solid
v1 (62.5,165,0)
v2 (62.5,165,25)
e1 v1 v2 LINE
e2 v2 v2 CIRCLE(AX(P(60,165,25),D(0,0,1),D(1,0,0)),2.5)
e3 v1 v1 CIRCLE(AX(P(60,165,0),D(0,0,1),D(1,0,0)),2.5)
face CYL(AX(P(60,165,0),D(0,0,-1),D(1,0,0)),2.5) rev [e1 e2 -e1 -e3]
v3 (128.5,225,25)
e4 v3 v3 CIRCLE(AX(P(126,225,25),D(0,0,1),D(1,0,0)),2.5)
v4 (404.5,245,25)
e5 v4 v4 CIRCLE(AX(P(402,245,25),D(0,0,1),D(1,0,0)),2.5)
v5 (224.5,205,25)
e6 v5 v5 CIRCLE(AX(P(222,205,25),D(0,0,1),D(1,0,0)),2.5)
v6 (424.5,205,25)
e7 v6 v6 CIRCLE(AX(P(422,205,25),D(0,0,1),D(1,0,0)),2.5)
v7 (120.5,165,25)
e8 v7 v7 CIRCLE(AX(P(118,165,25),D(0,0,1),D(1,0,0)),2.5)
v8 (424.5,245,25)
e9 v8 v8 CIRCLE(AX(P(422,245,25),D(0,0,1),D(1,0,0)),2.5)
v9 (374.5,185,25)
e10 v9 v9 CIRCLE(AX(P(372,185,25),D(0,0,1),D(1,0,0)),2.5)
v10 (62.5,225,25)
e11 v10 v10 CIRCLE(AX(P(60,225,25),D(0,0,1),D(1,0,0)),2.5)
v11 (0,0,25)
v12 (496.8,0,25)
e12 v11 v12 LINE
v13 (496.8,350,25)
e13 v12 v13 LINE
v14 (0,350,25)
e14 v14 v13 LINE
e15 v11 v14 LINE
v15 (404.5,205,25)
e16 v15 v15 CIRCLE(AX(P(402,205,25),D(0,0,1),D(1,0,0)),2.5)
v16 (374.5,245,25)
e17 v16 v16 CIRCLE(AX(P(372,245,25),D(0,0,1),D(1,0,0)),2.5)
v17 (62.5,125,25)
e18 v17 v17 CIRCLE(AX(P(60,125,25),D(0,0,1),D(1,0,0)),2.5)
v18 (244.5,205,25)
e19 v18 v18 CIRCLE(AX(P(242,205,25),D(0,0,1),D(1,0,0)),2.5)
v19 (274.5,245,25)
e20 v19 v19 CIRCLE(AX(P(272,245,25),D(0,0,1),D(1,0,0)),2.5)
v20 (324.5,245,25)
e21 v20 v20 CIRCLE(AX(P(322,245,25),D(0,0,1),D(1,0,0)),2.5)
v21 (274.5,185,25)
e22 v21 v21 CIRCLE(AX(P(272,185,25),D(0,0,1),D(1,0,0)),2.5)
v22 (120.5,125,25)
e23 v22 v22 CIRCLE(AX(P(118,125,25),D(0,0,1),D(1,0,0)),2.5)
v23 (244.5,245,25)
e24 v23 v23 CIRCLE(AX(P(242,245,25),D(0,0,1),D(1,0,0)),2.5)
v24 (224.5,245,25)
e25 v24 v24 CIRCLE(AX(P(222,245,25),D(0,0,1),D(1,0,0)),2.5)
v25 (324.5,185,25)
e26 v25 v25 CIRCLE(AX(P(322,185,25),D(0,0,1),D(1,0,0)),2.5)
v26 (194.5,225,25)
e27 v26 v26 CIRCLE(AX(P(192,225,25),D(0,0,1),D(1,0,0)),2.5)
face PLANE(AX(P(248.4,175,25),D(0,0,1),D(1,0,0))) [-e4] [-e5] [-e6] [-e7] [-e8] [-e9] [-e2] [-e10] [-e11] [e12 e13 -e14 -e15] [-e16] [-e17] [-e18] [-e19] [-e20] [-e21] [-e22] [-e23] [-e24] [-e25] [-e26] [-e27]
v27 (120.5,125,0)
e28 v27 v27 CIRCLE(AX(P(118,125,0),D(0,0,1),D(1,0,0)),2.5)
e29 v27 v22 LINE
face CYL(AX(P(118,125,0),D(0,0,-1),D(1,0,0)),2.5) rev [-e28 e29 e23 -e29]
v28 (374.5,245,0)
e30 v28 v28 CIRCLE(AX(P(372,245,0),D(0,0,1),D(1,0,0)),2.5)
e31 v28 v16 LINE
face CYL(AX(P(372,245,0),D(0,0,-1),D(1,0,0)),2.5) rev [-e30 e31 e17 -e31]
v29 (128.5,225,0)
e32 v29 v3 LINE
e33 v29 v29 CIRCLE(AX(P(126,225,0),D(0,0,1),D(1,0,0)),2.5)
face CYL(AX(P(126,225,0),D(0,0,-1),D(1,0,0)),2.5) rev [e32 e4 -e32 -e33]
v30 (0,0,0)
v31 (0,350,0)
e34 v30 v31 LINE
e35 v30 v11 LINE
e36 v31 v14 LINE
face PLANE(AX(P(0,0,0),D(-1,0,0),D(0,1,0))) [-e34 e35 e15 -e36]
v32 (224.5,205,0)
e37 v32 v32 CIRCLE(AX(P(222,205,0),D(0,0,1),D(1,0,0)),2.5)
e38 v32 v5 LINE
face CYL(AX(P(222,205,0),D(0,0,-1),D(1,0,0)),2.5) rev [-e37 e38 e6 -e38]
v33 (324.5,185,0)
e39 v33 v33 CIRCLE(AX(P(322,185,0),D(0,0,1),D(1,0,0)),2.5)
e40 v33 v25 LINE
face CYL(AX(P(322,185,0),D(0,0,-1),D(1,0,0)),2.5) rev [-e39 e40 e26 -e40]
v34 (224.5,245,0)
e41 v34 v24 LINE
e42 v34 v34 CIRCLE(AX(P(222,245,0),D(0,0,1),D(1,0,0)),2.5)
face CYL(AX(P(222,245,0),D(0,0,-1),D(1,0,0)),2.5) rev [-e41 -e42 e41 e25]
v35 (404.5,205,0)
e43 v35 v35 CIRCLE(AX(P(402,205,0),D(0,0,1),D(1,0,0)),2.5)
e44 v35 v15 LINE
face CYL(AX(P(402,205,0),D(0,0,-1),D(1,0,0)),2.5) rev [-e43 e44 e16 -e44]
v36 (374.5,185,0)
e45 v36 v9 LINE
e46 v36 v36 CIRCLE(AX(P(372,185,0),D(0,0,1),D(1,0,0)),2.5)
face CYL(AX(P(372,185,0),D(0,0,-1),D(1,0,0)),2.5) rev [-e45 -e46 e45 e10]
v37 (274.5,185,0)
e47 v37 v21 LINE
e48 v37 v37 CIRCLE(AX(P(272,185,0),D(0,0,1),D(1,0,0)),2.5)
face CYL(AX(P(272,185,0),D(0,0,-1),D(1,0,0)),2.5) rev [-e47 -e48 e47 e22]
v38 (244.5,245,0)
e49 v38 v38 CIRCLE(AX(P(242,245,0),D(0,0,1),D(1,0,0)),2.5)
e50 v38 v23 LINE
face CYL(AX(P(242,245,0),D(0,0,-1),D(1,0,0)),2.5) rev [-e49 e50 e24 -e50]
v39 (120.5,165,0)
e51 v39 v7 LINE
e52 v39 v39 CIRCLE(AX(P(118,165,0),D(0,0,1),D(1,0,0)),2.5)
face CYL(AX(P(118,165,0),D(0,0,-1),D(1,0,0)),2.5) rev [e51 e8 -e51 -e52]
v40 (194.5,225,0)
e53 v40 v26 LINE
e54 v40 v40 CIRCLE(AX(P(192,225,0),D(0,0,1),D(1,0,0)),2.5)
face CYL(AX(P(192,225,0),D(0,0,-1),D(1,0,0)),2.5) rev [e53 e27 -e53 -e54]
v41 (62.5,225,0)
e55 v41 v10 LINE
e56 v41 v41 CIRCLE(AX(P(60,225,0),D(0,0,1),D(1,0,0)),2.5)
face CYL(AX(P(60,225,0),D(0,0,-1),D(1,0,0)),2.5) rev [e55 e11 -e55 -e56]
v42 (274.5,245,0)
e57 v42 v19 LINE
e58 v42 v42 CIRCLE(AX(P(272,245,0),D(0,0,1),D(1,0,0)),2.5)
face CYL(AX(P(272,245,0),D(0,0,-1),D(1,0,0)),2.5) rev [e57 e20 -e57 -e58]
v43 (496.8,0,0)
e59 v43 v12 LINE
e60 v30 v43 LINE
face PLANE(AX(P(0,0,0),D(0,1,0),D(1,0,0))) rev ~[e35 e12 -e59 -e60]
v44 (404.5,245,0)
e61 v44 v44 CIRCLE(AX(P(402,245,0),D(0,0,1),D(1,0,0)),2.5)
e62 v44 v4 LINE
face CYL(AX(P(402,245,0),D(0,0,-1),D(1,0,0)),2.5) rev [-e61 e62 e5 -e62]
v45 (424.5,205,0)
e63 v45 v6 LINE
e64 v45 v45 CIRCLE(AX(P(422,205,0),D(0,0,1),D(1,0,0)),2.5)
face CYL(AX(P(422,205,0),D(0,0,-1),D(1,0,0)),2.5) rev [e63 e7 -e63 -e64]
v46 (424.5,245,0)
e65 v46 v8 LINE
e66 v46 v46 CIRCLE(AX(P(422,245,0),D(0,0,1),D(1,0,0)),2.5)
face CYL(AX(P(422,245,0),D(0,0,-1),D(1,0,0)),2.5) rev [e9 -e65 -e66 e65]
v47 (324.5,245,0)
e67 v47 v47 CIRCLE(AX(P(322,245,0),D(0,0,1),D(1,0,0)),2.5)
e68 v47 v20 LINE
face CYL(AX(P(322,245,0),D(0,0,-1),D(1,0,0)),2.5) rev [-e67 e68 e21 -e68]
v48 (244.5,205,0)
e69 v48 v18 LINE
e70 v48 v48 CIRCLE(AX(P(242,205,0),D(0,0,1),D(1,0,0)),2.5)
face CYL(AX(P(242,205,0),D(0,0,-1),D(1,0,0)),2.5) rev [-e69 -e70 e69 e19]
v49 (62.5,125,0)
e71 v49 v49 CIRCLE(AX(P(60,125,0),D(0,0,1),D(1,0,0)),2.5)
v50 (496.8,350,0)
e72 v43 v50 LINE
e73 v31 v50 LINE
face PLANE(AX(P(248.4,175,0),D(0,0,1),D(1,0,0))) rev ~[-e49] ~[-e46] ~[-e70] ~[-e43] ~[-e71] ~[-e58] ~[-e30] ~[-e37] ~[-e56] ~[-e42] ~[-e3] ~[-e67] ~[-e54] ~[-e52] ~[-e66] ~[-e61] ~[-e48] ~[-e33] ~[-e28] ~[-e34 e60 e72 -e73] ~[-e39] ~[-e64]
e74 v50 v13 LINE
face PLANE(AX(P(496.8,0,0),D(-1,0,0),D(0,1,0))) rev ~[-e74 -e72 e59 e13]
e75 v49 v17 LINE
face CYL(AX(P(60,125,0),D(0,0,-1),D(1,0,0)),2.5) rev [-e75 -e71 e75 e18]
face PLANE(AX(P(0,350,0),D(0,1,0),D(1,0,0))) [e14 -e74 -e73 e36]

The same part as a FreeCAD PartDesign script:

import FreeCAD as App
import Part
import Sketcher
from FreeCAD import Vector

doc = App.newDocument("Part")
body = doc.addObject("PartDesign::Body", "Body")

# Sketch on XY plane
sketch1 = doc.addObject("Sketcher::SketchObject", "Sketch")
body.addObject(sketch1)
sketch1.AttachmentSupport = (doc.XY_Plane, [""])
sketch1.MapMode = "FlatFace"
sketch1.addGeometry([
    Part.LineSegment(Vector(0, 350, 0), Vector(0, 0, 0)),  # 0
    Part.LineSegment(Vector(0, 0, 0), Vector(496.8, 0, 0)),  # 1
    Part.LineSegment(Vector(496.8, 0, 0), Vector(496.8, 350, 0)),  # 2
    Part.LineSegment(Vector(496.8, 350, 0), Vector(0, 350, 0)),  # 3
    Part.Circle(Vector(60, 125, 0), Vector(0, 0, 1), 2.5),  # 4
    Part.Circle(Vector(118, 125, 0), Vector(0, 0, 1), 2.5),  # 5
    Part.Circle(Vector(60, 165, 0), Vector(0, 0, 1), 2.5),  # 6
    Part.Circle(Vector(118, 165, 0), Vector(0, 0, 1), 2.5),  # 7
    Part.Circle(Vector(222, 205, 0), Vector(0, 0, 1), 2.5),  # 8
    Part.Circle(Vector(60, 225, 0), Vector(0, 0, 1), 2.5),  # 9
    Part.Circle(Vector(126, 225, 0), Vector(0, 0, 1), 2.5),  # 10
    Part.Circle(Vector(192, 225, 0), Vector(0, 0, 1), 2.5),  # 11
    Part.Circle(Vector(222, 245, 0), Vector(0, 0, 1), 2.5),  # 12
    Part.Circle(Vector(272, 185, 0), Vector(0, 0, 1), 2.5),  # 13
    Part.Circle(Vector(322, 185, 0), Vector(0, 0, 1), 2.5),  # 14
    Part.Circle(Vector(242, 205, 0), Vector(0, 0, 1), 2.5),  # 15
    Part.Circle(Vector(372, 185, 0), Vector(0, 0, 1), 2.5),  # 16
    Part.Circle(Vector(402, 205, 0), Vector(0, 0, 1), 2.5),  # 17
    Part.Circle(Vector(422, 205, 0), Vector(0, 0, 1), 2.5),  # 18
    Part.Circle(Vector(242, 245, 0), Vector(0, 0, 1), 2.5),  # 19
    Part.Circle(Vector(272, 245, 0), Vector(0, 0, 1), 2.5),  # 20
    Part.Circle(Vector(322, 245, 0), Vector(0, 0, 1), 2.5),  # 21
    Part.Circle(Vector(372, 245, 0), Vector(0, 0, 1), 2.5),  # 22
    Part.Circle(Vector(402, 245, 0), Vector(0, 0, 1), 2.5),  # 23
    Part.Circle(Vector(422, 245, 0), Vector(0, 0, 1), 2.5),  # 24
], False)
sketch1.addConstraint([
    Sketcher.Constraint("Coincident", 0, 2, 1, 1),
    Sketcher.Constraint("Coincident", 1, 2, 2, 1),
    Sketcher.Constraint("Coincident", 2, 2, 3, 1),
    Sketcher.Constraint("Coincident", 3, 2, 0, 1),
    Sketcher.Constraint("Vertical", 0),
    Sketcher.Constraint("Horizontal", 1),
    Sketcher.Constraint("Vertical", 2),
    Sketcher.Constraint("Horizontal", 3),
    Sketcher.Constraint("Coincident", 0, 2, -1, 1),
    Sketcher.Constraint("Equal", 4, 5),
    Sketcher.Constraint("Equal", 5, 6),
    Sketcher.Constraint("Equal", 6, 7),
    Sketcher.Constraint("Equal", 7, 8),
    Sketcher.Constraint("Equal", 8, 9),
    Sketcher.Constraint("Equal", 9, 10),
    Sketcher.Constraint("Equal", 10, 11),
    Sketcher.Constraint("Equal", 11, 12),
    Sketcher.Constraint("Equal", 12, 13),
    Sketcher.Constraint("Equal", 13, 14),
    Sketcher.Constraint("Equal", 14, 15),
    Sketcher.Constraint("Equal", 15, 16),
    Sketcher.Constraint("Equal", 16, 17),
    Sketcher.Constraint("Equal", 17, 18),
    Sketcher.Constraint("Equal", 18, 19),
    Sketcher.Constraint("Equal", 19, 20),
    Sketcher.Constraint("Equal", 20, 21),
    Sketcher.Constraint("Equal", 21, 22),
    Sketcher.Constraint("Equal", 22, 23),
    Sketcher.Constraint("Equal", 23, 24),
    Sketcher.Constraint("Horizontal", 4, 3, 5, 3),
    Sketcher.Constraint("Horizontal", 6, 3, 7, 3),
    Sketcher.Constraint("Horizontal", 9, 3, 10, 3),
    Sketcher.Constraint("Horizontal", 10, 3, 11, 3),
    Sketcher.Constraint("Horizontal", 13, 3, 14, 3),
    Sketcher.Constraint("Horizontal", 8, 3, 15, 3),
    Sketcher.Constraint("Horizontal", 14, 3, 16, 3),
    Sketcher.Constraint("Horizontal", 15, 3, 17, 3),
    Sketcher.Constraint("Horizontal", 17, 3, 18, 3),
    Sketcher.Constraint("Horizontal", 12, 3, 19, 3),
    Sketcher.Constraint("Horizontal", 19, 3, 20, 3),
    Sketcher.Constraint("Horizontal", 20, 3, 21, 3),
    Sketcher.Constraint("Horizontal", 21, 3, 22, 3),
    Sketcher.Constraint("Horizontal", 22, 3, 23, 3),
    Sketcher.Constraint("Horizontal", 23, 3, 24, 3),
    Sketcher.Constraint("Vertical", 4, 3, 6, 3),
    Sketcher.Constraint("Vertical", 5, 3, 7, 3),
    Sketcher.Constraint("Vertical", 6, 3, 9, 3),
    Sketcher.Constraint("Vertical", 8, 3, 12, 3),
    Sketcher.Constraint("Vertical", 15, 3, 19, 3),
    Sketcher.Constraint("Vertical", 13, 3, 20, 3),
    Sketcher.Constraint("Vertical", 14, 3, 21, 3),
    Sketcher.Constraint("Vertical", 16, 3, 22, 3),
    Sketcher.Constraint("Vertical", 17, 3, 23, 3),
    Sketcher.Constraint("Vertical", 18, 3, 24, 3),
    Sketcher.Constraint("Diameter", 4, 5.0),
    Sketcher.Constraint("DistanceY", 0, 2, 0, 1, 350.0),
    Sketcher.Constraint("DistanceX", 1, 1, 1, 2, 496.8),
    Sketcher.Constraint("DistanceX", -1, 1, 4, 3, 60.0),
    Sketcher.Constraint("DistanceY", -1, 1, 4, 3, 125.0),
    Sketcher.Constraint("DistanceX", -1, 1, 5, 3, 118.0),
    Sketcher.Constraint("DistanceY", -1, 1, 6, 3, 165.0),
    Sketcher.Constraint("DistanceX", -1, 1, 8, 3, 222.0),
    Sketcher.Constraint("DistanceY", -1, 1, 8, 3, 205.0),
    Sketcher.Constraint("DistanceY", -1, 1, 9, 3, 225.0),
    Sketcher.Constraint("DistanceX", -1, 1, 10, 3, 126.0),
    Sketcher.Constraint("DistanceX", -1, 1, 11, 3, 192.0),
    Sketcher.Constraint("DistanceY", -1, 1, 12, 3, 245.0),
    Sketcher.Constraint("DistanceX", -1, 1, 13, 3, 272.0),
    Sketcher.Constraint("DistanceY", -1, 1, 13, 3, 185.0),
    Sketcher.Constraint("DistanceX", -1, 1, 14, 3, 322.0),
    Sketcher.Constraint("DistanceX", -1, 1, 15, 3, 242.0),
    Sketcher.Constraint("DistanceX", -1, 1, 16, 3, 372.0),
    Sketcher.Constraint("DistanceX", -1, 1, 17, 3, 402.0),
    Sketcher.Constraint("DistanceX", -1, 1, 18, 3, 422.0),
])
pad1 = doc.addObject("PartDesign::Pad", "Pad")
body.addObject(pad1)
pad1.Profile = sketch1
pad1.Length = 25

doc.recompute()
